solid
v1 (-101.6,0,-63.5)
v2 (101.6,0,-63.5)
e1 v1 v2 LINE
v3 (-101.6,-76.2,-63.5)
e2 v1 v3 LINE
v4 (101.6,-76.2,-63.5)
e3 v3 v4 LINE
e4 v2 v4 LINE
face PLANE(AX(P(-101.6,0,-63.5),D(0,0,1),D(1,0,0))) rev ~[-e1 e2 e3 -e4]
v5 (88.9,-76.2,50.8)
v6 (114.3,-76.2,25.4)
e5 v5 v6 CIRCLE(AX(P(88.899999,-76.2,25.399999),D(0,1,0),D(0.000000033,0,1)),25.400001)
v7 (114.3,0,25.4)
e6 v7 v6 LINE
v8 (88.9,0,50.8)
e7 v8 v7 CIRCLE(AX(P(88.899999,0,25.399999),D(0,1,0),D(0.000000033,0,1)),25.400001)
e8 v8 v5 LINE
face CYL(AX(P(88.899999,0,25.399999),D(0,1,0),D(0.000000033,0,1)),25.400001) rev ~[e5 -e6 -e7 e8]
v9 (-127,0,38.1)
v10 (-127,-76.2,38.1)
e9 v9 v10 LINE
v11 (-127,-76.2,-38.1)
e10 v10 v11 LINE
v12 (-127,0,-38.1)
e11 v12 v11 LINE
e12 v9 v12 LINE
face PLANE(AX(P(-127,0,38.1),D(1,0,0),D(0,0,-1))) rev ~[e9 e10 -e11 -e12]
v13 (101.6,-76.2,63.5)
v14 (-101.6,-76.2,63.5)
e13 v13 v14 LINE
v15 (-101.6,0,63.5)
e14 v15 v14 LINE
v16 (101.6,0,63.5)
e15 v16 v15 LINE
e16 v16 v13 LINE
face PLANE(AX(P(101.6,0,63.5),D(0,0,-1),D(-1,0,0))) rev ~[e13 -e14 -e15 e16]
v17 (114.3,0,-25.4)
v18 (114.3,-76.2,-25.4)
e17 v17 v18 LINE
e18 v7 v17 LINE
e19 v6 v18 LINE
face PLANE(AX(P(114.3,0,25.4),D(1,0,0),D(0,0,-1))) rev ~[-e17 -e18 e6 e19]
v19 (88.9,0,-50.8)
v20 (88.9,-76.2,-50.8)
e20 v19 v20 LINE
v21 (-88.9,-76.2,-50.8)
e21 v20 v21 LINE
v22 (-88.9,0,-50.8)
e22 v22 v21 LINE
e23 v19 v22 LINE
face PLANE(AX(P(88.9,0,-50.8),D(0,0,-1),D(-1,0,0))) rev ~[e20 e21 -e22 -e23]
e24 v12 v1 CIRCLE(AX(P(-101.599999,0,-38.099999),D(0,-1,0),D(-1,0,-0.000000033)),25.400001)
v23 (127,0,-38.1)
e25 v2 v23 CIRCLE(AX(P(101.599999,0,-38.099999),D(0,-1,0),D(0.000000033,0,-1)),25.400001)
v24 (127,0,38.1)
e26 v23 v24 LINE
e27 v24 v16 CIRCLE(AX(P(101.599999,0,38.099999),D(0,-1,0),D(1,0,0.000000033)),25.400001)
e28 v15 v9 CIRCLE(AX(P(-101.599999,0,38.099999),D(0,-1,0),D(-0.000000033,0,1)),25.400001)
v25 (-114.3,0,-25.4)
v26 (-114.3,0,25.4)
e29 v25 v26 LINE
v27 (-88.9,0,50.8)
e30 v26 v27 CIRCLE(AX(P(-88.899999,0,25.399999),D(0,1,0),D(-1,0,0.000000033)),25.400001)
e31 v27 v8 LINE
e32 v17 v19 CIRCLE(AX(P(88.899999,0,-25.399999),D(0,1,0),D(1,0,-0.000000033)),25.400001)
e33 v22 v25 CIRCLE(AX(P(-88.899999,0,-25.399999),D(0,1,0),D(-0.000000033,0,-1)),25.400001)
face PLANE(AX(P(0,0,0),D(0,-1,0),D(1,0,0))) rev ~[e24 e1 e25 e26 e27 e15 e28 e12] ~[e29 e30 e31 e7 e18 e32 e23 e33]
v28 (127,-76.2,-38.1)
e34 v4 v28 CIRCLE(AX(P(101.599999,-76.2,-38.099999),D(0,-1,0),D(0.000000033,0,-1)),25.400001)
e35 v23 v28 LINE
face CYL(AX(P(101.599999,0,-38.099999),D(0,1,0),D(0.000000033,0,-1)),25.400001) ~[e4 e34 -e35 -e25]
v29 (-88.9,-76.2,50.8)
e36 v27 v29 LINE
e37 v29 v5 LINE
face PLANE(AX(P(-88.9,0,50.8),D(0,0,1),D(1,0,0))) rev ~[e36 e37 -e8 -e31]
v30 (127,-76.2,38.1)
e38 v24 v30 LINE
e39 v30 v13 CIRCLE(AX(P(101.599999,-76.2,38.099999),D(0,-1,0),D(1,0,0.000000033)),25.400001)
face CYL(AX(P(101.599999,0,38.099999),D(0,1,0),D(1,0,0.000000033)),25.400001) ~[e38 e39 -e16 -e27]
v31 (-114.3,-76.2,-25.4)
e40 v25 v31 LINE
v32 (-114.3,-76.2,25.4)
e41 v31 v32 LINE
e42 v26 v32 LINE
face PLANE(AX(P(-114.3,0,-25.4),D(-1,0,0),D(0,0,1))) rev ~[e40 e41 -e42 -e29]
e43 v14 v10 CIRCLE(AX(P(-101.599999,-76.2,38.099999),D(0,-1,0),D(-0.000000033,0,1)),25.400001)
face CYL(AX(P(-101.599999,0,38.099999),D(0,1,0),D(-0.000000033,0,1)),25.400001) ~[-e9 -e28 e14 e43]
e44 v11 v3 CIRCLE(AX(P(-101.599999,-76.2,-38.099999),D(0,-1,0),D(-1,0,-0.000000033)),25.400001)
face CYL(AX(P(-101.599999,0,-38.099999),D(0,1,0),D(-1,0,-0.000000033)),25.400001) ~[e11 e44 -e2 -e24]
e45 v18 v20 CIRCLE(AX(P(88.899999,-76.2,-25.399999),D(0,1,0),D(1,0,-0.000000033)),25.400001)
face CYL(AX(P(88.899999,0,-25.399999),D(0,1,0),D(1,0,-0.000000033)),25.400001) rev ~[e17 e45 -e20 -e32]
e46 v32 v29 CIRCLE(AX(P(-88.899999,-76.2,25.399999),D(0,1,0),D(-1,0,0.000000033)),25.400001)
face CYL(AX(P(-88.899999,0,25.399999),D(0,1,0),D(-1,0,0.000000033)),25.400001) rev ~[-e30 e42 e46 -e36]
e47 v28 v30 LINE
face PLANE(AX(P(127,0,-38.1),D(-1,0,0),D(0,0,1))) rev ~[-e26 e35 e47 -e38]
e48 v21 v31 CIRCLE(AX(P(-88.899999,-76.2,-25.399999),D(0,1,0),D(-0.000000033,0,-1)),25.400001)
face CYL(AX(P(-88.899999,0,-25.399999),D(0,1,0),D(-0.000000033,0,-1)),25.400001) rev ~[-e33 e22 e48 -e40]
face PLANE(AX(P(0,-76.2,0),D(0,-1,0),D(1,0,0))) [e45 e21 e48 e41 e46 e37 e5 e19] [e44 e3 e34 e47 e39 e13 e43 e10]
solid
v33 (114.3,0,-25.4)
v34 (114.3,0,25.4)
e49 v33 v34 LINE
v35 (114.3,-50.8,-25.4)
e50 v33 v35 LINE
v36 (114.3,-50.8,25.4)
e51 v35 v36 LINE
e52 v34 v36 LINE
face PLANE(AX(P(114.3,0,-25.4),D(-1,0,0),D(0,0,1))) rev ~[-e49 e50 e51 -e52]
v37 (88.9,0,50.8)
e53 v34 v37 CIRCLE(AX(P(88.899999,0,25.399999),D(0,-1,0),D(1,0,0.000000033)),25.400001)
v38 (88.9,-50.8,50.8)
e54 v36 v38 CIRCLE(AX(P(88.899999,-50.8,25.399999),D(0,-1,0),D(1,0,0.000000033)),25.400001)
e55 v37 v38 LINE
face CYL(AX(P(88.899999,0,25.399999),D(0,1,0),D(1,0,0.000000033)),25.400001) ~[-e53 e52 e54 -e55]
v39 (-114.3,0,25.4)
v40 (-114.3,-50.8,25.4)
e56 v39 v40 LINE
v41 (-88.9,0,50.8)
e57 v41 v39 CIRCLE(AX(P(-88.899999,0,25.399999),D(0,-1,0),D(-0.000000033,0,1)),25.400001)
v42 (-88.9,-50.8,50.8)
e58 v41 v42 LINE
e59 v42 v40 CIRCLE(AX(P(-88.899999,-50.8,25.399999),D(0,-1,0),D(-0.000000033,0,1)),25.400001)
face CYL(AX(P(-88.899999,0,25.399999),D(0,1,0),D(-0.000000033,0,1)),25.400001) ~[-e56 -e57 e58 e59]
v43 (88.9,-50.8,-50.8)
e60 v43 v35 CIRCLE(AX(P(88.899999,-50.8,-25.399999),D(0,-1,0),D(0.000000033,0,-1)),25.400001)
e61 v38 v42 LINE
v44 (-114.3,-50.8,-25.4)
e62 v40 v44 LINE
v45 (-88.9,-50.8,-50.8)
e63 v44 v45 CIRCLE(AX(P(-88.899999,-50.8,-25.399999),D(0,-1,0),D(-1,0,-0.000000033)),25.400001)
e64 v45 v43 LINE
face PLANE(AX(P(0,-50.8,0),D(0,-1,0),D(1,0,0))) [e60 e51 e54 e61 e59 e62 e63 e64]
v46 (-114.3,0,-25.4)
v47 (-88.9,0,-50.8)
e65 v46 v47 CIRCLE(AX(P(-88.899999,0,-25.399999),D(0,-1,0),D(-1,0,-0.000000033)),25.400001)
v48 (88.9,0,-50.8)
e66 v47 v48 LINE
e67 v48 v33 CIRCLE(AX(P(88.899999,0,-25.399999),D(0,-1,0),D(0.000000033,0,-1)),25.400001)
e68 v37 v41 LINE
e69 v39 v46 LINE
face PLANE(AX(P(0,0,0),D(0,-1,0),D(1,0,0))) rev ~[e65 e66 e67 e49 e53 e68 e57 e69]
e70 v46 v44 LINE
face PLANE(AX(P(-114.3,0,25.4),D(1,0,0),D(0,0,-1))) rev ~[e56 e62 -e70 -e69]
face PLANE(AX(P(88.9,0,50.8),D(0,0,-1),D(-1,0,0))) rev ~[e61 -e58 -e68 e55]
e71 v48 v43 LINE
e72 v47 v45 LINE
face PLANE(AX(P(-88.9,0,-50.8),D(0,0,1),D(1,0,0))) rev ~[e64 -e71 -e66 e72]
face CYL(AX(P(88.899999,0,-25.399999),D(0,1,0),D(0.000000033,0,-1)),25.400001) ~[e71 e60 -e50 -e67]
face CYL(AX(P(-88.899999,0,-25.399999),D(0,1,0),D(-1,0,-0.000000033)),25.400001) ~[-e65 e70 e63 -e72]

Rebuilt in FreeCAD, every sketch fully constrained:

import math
import FreeCAD as App
import Part
import Sketcher

V = App.Vector
Q = App.Units.Quantity

doc = App.newDocument("Part")
body = doc.addObject("PartDesign::Body", "Body")

# Sketch on XZ plane
sketch1 = body.newObject("Sketcher::SketchObject", "Sketch")
sketch1.AttachmentSupport = (doc.getObject("XZ_Plane"), [""])
sketch1.MapMode = "FlatFace"
sketch1.addGeometry(Part.ArcOfCircle(Part.Circle(V(-88.899999, -25.399999, 0), V(0, 0, 1), 25.400001), math.radians(-179.999998), math.radians(-90.000002)), False)
sketch1.addGeometry(Part.LineSegment(V(-88.9, -50.8, 0), V(88.9, -50.8, 0)), False)
sketch1.addGeometry(Part.ArcOfCircle(Part.Circle(V(88.899999, -25.399999, 0), V(0, 0, 1), 25.400001), math.radians(-89.999998), math.radians(-0.000002)), False)
sketch1.addGeometry(Part.LineSegment(V(114.3, -25.4, 0), V(114.3, 25.4, 0)), False)
sketch1.addGeometry(Part.ArcOfCircle(Part.Circle(V(88.899999, 25.399999, 0), V(0, 0, 1), 25.400001), math.radians(0.000002), math.radians(89.999998)), False)
sketch1.addGeometry(Part.LineSegment(V(88.9, 50.8, 0), V(-88.9, 50.8, 0)), False)
sketch1.addGeometry(Part.ArcOfCircle(Part.Circle(V(-88.899999, 25.399999, 0), V(0, 0, 1), 25.400001), math.radians(90.000002), math.radians(179.999998)), False)
sketch1.addGeometry(Part.LineSegment(V(-114.3, 25.4, 0), V(-114.3, -25.4, 0)), False)
sketch1.addConstraint(Sketcher.Constraint("Tangent", 0, 2, 1, 1))
sketch1.addConstraint(Sketcher.Constraint("Tangent", 1, 2, 2, 1))
sketch1.addConstraint(Sketcher.Constraint("Tangent", 2, 2, 3, 1))
sketch1.addConstraint(Sketcher.Constraint("Tangent", 3, 2, 4, 1))
sketch1.addConstraint(Sketcher.Constraint("Tangent", 4, 2, 5, 1))
sketch1.addConstraint(Sketcher.Constraint("Tangent", 5, 2, 6, 1))
sketch1.addConstraint(Sketcher.Constraint("Tangent", 6, 2, 7, 1))
sketch1.addConstraint(Sketcher.Constraint("Tangent", 7, 2, 0, 1))
sketch1.addConstraint(Sketcher.Constraint("Horizontal", 1))
sketch1.addConstraint(Sketcher.Constraint("Vertical", 3))
sketch1.addConstraint(Sketcher.Constraint("Horizontal", 5))
sketch1.addConstraint(Sketcher.Constraint("Vertical", 7))
sketch1.addConstraint(Sketcher.Constraint("Equal", 0, 2))
sketch1.addConstraint(Sketcher.Constraint("Equal", 2, 4))
sketch1.addConstraint(Sketcher.Constraint("Equal", 4, 6))
sketch1.addConstraint(Sketcher.Constraint("Symmetric", 0, 3, 4, 3, -1, 1))
sketch1.addConstraint(Sketcher.Constraint("Radius", 0, Q("1 in")))
sketch1.addConstraint(Sketcher.Constraint("DistanceX", 1, 1, 1, 2, Q("7 in")))
sketch1.addConstraint(Sketcher.Constraint("DistanceY", 3, 1, 3, 2, Q("2 in")))
pad1 = body.newObject("PartDesign::Pad", "Pad")
pad1.Profile = sketch1
pad1.Length = Q("2 in")
body2 = doc.addObject("PartDesign::Body", "Body001")

# Sketch on XZ plane
sketch2 = body2.newObject("Sketcher::SketchObject", "Sketch001")
sketch2.AttachmentSupport = (doc.getObject("XZ_Plane001"), [""])
sketch2.MapMode = "FlatFace"
sketch2.addGeometry(Part.ArcOfCircle(Part.Circle(V(-101.599999, -38.099999, 0), V(0, 0, 1), 25.400001), math.radians(-179.999998), math.radians(-90.000002)), False)
sketch2.addGeometry(Part.LineSegment(V(-101.6, -63.5, 0), V(101.6, -63.5, 0)), False)
sketch2.addGeometry(Part.ArcOfCircle(Part.Circle(V(101.599999, -38.099999, 0), V(0, 0, 1), 25.400001), math.radians(-89.999998), math.radians(-0.000002)), False)
sketch2.addGeometry(Part.LineSegment(V(127, -38.1, 0), V(127, 38.1, 0)), False)
sketch2.addGeometry(Part.ArcOfCircle(Part.Circle(V(101.599999, 38.099999, 0), V(0, 0, 1), 25.400001), math.radians(0.000002), math.radians(89.999998)), False)
sketch2.addGeometry(Part.LineSegment(V(101.6, 63.5, 0), V(-101.6, 63.5, 0)), False)
sketch2.addGeometry(Part.ArcOfCircle(Part.Circle(V(-101.599999, 38.099999, 0), V(0, 0, 1), 25.400001), math.radians(90.000002), math.radians(179.999998)), False)
sketch2.addGeometry(Part.LineSegment(V(-127, 38.1, 0), V(-127, -38.1, 0)), False)
sketch2.addGeometry(Part.ArcOfCircle(Part.Circle(V(88.899999, -25.399999, 0), V(0, 0, 1), 25.400001), math.radians(-89.999998), math.radians(-0.000002)), False)
sketch2.addGeometry(Part.LineSegment(V(88.9, -50.8, 0), V(-88.9, -50.8, 0)), False)
sketch2.addGeometry(Part.ArcOfCircle(Part.Circle(V(-88.899999, -25.399999, 0), V(0, 0, 1), 25.400001), math.radians(-179.999998), math.radians(-90.000002)), False)
sketch2.addGeometry(Part.LineSegment(V(-114.3, -25.4, 0), V(-114.3, 25.4, 0)), False)
sketch2.addGeometry(Part.ArcOfCircle(Part.Circle(V(-88.899999, 25.399999, 0), V(0, 0, 1), 25.400001), math.radians(90.000002), math.radians(179.999998)), False)
sketch2.addGeometry(Part.LineSegment(V(-88.9, 50.8, 0), V(88.9, 50.8, 0)), False)
sketch2.addGeometry(Part.ArcOfCircle(Part.Circle(V(88.899999, 25.399999, 0), V(0, 0, 1), 25.400001), math.radians(0.000002), math.radians(89.999998)), False)
sketch2.addGeometry(Part.LineSegment(V(114.3, 25.4, 0), V(114.3, -25.4, 0)), False)
sketch2.addConstraint(Sketcher.Constraint("Tangent", 0, 2, 1, 1))
sketch2.addConstraint(Sketcher.Constraint("Tangent", 1, 2, 2, 1))
sketch2.addConstraint(Sketcher.Constraint("Tangent", 2, 2, 3, 1))
sketch2.addConstraint(Sketcher.Constraint("Tangent", 3, 2, 4, 1))
sketch2.addConstraint(Sketcher.Constraint("Tangent", 4, 2, 5, 1))
sketch2.addConstraint(Sketcher.Constraint("Tangent", 5, 2, 6, 1))
sketch2.addConstraint(Sketcher.Constraint("Tangent", 6, 2, 7, 1))
sketch2.addConstraint(Sketcher.Constraint("Tangent", 7, 2, 0, 1))
sketch2.addConstraint(Sketcher.Constraint("Tangent", 8, 1, 9, 1))
sketch2.addConstraint(Sketcher.Constraint("Tangent", 9, 2, 10, 2))
sketch2.addConstraint(Sketcher.Constraint("Tangent", 10, 1, 11, 1))
sketch2.addConstraint(Sketcher.Constraint("Tangent", 11, 2, 12, 2))
sketch2.addConstraint(Sketcher.Constraint("Tangent", 12, 1, 13, 1))
sketch2.addConstraint(Sketcher.Constraint("Tangent", 13, 2, 14, 2))
sketch2.addConstraint(Sketcher.Constraint("Tangent", 14, 1, 15, 1))
sketch2.addConstraint(Sketcher.Constraint("Tangent", 15, 2, 8, 2))
sketch2.addConstraint(Sketcher.Constraint("Horizontal", 1))
sketch2.addConstraint(Sketcher.Constraint("Vertical", 3))
sketch2.addConstraint(Sketcher.Constraint("Horizontal", 5))
sketch2.addConstraint(Sketcher.Constraint("Vertical", 7))
sketch2.addConstraint(Sketcher.Constraint("Horizontal", 9))
sketch2.addConstraint(Sketcher.Constraint("Vertical", 11))
sketch2.addConstraint(Sketcher.Constraint("Horizontal", 13))
sketch2.addConstraint(Sketcher.Constraint("Vertical", 15))
sketch2.addConstraint(Sketcher.Constraint("Equal", 0, 2))
sketch2.addConstraint(Sketcher.Constraint("Equal", 2, 4))
sketch2.addConstraint(Sketcher.Constraint("Equal", 4, 6))
sketch2.addConstraint(Sketcher.Constraint("Equal", 6, 8))
sketch2.addConstraint(Sketcher.Constraint("Equal", 8, 10))
sketch2.addConstraint(Sketcher.Constraint("Equal", 10, 12))
sketch2.addConstraint(Sketcher.Constraint("Equal", 12, 14))
sketch2.addConstraint(Sketcher.Constraint("Symmetric", 0, 3, 4, 3, -1, 1))
sketch2.addConstraint(Sketcher.Constraint("Symmetric", 8, 3, 12, 3, -1, 1))
sketch2.addConstraint(Sketcher.Constraint("Radius", 0, Q("1 in")))
sketch2.addConstraint(Sketcher.Constraint("DistanceX", 1, 1, 1, 2, Q("8 in")))
sketch2.addConstraint(Sketcher.Constraint("DistanceX", 9, 2, 9, 1, Q("7 in")))
sketch2.addConstraint(Sketcher.Constraint("DistanceY", 3, 1, 3, 2, Q("3 in")))
sketch2.addConstraint(Sketcher.Constraint("DistanceY", 11, 1, 11, 2, Q("2 in")))
pad2 = body2.newObject("PartDesign::Pad", "Pad001")
pad2.Profile = sketch2
pad2.Length = Q("3 in")

doc.recompute()
